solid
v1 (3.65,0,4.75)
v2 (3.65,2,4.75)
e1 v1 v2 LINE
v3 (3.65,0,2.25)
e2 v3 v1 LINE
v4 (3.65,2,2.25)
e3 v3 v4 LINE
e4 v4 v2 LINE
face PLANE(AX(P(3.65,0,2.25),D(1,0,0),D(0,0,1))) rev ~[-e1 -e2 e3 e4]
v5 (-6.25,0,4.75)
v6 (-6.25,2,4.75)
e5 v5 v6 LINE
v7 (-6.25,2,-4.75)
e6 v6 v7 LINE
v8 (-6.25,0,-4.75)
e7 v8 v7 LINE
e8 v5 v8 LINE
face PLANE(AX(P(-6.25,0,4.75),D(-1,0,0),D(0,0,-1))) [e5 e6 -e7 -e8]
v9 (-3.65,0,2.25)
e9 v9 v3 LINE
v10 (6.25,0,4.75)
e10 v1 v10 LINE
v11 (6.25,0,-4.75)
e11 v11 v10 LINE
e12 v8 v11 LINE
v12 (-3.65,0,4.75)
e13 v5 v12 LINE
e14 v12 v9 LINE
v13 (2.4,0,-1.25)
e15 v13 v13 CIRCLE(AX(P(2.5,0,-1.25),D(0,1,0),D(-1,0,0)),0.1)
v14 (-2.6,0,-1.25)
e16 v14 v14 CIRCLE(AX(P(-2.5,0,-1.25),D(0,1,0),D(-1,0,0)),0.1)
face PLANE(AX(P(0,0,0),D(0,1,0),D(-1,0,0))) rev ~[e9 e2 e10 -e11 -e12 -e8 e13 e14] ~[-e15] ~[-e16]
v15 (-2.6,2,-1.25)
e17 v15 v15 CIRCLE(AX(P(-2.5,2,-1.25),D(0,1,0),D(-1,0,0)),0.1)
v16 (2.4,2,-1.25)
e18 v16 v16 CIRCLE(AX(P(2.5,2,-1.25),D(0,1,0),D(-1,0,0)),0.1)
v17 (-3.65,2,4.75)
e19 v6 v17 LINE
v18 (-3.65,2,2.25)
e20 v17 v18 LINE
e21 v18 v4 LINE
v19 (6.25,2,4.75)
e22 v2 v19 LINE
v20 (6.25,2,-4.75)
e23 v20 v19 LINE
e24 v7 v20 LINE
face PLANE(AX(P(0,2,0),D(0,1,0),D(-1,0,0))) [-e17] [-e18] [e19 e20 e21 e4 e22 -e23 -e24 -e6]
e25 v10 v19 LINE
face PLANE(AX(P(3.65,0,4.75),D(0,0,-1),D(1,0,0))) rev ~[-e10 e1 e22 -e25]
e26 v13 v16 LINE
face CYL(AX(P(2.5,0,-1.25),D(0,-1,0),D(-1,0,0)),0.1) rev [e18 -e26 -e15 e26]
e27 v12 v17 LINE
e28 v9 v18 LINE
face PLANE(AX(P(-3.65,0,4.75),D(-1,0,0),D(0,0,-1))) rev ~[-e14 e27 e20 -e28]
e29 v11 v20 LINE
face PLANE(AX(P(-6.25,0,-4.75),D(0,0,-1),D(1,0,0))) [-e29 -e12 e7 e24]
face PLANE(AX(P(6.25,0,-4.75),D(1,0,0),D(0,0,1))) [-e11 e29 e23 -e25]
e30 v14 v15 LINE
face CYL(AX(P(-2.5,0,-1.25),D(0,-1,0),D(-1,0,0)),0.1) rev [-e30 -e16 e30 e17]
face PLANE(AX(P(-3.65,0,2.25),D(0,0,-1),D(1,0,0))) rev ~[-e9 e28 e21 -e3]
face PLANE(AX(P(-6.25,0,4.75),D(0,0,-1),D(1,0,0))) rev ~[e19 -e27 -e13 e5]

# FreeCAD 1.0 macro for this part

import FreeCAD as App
import Part
import Sketcher
from FreeCAD import Vector


def add_polygon(sketch, points):
    """Adds a closed chain of lines whose ends are joined by coincident constraints."""
    first, n = sketch.GeometryCount, len(points)
    for a, b in zip(points, points[1:] + points[:1]):
        sketch.addGeometry(Part.LineSegment(App.Vector(*a, 0), App.Vector(*b, 0)), False)
    for i in range(n):
        sketch.addConstraint(Sketcher.Constraint("Coincident", first + i, 2, first + (i + 1) % n, 1))

doc = App.newDocument("Part")
body = doc.addObject("PartDesign::Body", "Body")

sketch1 = body.newObject("Sketcher::SketchObject", "Sketch")
sketch1.AttachmentSupport = (doc.getObject("XZ_Plane"), [""])
sketch1.MapMode = "FlatFace"
add_polygon(sketch1, [(-6.25, -4.75), (-6.25, 4.75), (-3.65, 4.75), (-3.65, 2.25), (3.65, 2.25), (3.65, 4.75), (6.25, 4.75), (6.25, -4.75)])
sketch1.addGeometry(Part.Circle(Vector(2.5, -1.25, 0), Vector(0, 0, 1), 0.1), False)
sketch1.addGeometry(Part.Circle(Vector(-2.5, -1.25, 0), Vector(0, 0, 1), 0.1), False)
sketch1.addConstraint(Sketcher.Constraint("Vertical", 0))
sketch1.addConstraint(Sketcher.Constraint("Horizontal", 1))
sketch1.addConstraint(Sketcher.Constraint("Vertical", 2))
sketch1.addConstraint(Sketcher.Constraint("Horizontal", 3))
sketch1.addConstraint(Sketcher.Constraint("Vertical", 4))
sketch1.addConstraint(Sketcher.Constraint("Horizontal", 5))
sketch1.addConstraint(Sketcher.Constraint("Vertical", 6))
sketch1.addConstraint(Sketcher.Constraint("Horizontal", 7))
sketch1.addConstraint(Sketcher.Constraint("Equal", 8, 9))
sketch1.addConstraint(Sketcher.Constraint("Symmetric", 0, 2, 6, 2, -1, 1))
sketch1.addConstraint(Sketcher.Constraint("Symmetric", 8, 3, 9, 3, -2))
sketch1.addConstraint(Sketcher.Constraint("Symmetric", 1, 2, 4, 2, -2))
sketch1.addConstraint(Sketcher.Constraint("Diameter", 8, 0.2))
sketch1.addConstraint(Sketcher.Constraint("DistanceX", 1, 1, 1, 2, 2.6))
sketch1.addConstraint(Sketcher.Constraint("DistanceX", 3, 1, 3, 2, 7.3))
sketch1.addConstraint(Sketcher.Constraint("DistanceY", 0, 1, 0, 2, 9.5))
sketch1.addConstraint(Sketcher.Constraint("DistanceY", 2, 2, 2, 1, 2.5))
sketch1.addConstraint(Sketcher.Constraint("DistanceX", -1, 1, 8, 3, 2.5))
sketch1.addConstraint(Sketcher.Constraint("DistanceY", 9, 3, 0, 2, 6.0))
pad1 = body.newObject("PartDesign::Pad", "Pad")
pad1.Profile = sketch1
pad1.Length = 2
pad1.Reversed = True

doc.recompute()
